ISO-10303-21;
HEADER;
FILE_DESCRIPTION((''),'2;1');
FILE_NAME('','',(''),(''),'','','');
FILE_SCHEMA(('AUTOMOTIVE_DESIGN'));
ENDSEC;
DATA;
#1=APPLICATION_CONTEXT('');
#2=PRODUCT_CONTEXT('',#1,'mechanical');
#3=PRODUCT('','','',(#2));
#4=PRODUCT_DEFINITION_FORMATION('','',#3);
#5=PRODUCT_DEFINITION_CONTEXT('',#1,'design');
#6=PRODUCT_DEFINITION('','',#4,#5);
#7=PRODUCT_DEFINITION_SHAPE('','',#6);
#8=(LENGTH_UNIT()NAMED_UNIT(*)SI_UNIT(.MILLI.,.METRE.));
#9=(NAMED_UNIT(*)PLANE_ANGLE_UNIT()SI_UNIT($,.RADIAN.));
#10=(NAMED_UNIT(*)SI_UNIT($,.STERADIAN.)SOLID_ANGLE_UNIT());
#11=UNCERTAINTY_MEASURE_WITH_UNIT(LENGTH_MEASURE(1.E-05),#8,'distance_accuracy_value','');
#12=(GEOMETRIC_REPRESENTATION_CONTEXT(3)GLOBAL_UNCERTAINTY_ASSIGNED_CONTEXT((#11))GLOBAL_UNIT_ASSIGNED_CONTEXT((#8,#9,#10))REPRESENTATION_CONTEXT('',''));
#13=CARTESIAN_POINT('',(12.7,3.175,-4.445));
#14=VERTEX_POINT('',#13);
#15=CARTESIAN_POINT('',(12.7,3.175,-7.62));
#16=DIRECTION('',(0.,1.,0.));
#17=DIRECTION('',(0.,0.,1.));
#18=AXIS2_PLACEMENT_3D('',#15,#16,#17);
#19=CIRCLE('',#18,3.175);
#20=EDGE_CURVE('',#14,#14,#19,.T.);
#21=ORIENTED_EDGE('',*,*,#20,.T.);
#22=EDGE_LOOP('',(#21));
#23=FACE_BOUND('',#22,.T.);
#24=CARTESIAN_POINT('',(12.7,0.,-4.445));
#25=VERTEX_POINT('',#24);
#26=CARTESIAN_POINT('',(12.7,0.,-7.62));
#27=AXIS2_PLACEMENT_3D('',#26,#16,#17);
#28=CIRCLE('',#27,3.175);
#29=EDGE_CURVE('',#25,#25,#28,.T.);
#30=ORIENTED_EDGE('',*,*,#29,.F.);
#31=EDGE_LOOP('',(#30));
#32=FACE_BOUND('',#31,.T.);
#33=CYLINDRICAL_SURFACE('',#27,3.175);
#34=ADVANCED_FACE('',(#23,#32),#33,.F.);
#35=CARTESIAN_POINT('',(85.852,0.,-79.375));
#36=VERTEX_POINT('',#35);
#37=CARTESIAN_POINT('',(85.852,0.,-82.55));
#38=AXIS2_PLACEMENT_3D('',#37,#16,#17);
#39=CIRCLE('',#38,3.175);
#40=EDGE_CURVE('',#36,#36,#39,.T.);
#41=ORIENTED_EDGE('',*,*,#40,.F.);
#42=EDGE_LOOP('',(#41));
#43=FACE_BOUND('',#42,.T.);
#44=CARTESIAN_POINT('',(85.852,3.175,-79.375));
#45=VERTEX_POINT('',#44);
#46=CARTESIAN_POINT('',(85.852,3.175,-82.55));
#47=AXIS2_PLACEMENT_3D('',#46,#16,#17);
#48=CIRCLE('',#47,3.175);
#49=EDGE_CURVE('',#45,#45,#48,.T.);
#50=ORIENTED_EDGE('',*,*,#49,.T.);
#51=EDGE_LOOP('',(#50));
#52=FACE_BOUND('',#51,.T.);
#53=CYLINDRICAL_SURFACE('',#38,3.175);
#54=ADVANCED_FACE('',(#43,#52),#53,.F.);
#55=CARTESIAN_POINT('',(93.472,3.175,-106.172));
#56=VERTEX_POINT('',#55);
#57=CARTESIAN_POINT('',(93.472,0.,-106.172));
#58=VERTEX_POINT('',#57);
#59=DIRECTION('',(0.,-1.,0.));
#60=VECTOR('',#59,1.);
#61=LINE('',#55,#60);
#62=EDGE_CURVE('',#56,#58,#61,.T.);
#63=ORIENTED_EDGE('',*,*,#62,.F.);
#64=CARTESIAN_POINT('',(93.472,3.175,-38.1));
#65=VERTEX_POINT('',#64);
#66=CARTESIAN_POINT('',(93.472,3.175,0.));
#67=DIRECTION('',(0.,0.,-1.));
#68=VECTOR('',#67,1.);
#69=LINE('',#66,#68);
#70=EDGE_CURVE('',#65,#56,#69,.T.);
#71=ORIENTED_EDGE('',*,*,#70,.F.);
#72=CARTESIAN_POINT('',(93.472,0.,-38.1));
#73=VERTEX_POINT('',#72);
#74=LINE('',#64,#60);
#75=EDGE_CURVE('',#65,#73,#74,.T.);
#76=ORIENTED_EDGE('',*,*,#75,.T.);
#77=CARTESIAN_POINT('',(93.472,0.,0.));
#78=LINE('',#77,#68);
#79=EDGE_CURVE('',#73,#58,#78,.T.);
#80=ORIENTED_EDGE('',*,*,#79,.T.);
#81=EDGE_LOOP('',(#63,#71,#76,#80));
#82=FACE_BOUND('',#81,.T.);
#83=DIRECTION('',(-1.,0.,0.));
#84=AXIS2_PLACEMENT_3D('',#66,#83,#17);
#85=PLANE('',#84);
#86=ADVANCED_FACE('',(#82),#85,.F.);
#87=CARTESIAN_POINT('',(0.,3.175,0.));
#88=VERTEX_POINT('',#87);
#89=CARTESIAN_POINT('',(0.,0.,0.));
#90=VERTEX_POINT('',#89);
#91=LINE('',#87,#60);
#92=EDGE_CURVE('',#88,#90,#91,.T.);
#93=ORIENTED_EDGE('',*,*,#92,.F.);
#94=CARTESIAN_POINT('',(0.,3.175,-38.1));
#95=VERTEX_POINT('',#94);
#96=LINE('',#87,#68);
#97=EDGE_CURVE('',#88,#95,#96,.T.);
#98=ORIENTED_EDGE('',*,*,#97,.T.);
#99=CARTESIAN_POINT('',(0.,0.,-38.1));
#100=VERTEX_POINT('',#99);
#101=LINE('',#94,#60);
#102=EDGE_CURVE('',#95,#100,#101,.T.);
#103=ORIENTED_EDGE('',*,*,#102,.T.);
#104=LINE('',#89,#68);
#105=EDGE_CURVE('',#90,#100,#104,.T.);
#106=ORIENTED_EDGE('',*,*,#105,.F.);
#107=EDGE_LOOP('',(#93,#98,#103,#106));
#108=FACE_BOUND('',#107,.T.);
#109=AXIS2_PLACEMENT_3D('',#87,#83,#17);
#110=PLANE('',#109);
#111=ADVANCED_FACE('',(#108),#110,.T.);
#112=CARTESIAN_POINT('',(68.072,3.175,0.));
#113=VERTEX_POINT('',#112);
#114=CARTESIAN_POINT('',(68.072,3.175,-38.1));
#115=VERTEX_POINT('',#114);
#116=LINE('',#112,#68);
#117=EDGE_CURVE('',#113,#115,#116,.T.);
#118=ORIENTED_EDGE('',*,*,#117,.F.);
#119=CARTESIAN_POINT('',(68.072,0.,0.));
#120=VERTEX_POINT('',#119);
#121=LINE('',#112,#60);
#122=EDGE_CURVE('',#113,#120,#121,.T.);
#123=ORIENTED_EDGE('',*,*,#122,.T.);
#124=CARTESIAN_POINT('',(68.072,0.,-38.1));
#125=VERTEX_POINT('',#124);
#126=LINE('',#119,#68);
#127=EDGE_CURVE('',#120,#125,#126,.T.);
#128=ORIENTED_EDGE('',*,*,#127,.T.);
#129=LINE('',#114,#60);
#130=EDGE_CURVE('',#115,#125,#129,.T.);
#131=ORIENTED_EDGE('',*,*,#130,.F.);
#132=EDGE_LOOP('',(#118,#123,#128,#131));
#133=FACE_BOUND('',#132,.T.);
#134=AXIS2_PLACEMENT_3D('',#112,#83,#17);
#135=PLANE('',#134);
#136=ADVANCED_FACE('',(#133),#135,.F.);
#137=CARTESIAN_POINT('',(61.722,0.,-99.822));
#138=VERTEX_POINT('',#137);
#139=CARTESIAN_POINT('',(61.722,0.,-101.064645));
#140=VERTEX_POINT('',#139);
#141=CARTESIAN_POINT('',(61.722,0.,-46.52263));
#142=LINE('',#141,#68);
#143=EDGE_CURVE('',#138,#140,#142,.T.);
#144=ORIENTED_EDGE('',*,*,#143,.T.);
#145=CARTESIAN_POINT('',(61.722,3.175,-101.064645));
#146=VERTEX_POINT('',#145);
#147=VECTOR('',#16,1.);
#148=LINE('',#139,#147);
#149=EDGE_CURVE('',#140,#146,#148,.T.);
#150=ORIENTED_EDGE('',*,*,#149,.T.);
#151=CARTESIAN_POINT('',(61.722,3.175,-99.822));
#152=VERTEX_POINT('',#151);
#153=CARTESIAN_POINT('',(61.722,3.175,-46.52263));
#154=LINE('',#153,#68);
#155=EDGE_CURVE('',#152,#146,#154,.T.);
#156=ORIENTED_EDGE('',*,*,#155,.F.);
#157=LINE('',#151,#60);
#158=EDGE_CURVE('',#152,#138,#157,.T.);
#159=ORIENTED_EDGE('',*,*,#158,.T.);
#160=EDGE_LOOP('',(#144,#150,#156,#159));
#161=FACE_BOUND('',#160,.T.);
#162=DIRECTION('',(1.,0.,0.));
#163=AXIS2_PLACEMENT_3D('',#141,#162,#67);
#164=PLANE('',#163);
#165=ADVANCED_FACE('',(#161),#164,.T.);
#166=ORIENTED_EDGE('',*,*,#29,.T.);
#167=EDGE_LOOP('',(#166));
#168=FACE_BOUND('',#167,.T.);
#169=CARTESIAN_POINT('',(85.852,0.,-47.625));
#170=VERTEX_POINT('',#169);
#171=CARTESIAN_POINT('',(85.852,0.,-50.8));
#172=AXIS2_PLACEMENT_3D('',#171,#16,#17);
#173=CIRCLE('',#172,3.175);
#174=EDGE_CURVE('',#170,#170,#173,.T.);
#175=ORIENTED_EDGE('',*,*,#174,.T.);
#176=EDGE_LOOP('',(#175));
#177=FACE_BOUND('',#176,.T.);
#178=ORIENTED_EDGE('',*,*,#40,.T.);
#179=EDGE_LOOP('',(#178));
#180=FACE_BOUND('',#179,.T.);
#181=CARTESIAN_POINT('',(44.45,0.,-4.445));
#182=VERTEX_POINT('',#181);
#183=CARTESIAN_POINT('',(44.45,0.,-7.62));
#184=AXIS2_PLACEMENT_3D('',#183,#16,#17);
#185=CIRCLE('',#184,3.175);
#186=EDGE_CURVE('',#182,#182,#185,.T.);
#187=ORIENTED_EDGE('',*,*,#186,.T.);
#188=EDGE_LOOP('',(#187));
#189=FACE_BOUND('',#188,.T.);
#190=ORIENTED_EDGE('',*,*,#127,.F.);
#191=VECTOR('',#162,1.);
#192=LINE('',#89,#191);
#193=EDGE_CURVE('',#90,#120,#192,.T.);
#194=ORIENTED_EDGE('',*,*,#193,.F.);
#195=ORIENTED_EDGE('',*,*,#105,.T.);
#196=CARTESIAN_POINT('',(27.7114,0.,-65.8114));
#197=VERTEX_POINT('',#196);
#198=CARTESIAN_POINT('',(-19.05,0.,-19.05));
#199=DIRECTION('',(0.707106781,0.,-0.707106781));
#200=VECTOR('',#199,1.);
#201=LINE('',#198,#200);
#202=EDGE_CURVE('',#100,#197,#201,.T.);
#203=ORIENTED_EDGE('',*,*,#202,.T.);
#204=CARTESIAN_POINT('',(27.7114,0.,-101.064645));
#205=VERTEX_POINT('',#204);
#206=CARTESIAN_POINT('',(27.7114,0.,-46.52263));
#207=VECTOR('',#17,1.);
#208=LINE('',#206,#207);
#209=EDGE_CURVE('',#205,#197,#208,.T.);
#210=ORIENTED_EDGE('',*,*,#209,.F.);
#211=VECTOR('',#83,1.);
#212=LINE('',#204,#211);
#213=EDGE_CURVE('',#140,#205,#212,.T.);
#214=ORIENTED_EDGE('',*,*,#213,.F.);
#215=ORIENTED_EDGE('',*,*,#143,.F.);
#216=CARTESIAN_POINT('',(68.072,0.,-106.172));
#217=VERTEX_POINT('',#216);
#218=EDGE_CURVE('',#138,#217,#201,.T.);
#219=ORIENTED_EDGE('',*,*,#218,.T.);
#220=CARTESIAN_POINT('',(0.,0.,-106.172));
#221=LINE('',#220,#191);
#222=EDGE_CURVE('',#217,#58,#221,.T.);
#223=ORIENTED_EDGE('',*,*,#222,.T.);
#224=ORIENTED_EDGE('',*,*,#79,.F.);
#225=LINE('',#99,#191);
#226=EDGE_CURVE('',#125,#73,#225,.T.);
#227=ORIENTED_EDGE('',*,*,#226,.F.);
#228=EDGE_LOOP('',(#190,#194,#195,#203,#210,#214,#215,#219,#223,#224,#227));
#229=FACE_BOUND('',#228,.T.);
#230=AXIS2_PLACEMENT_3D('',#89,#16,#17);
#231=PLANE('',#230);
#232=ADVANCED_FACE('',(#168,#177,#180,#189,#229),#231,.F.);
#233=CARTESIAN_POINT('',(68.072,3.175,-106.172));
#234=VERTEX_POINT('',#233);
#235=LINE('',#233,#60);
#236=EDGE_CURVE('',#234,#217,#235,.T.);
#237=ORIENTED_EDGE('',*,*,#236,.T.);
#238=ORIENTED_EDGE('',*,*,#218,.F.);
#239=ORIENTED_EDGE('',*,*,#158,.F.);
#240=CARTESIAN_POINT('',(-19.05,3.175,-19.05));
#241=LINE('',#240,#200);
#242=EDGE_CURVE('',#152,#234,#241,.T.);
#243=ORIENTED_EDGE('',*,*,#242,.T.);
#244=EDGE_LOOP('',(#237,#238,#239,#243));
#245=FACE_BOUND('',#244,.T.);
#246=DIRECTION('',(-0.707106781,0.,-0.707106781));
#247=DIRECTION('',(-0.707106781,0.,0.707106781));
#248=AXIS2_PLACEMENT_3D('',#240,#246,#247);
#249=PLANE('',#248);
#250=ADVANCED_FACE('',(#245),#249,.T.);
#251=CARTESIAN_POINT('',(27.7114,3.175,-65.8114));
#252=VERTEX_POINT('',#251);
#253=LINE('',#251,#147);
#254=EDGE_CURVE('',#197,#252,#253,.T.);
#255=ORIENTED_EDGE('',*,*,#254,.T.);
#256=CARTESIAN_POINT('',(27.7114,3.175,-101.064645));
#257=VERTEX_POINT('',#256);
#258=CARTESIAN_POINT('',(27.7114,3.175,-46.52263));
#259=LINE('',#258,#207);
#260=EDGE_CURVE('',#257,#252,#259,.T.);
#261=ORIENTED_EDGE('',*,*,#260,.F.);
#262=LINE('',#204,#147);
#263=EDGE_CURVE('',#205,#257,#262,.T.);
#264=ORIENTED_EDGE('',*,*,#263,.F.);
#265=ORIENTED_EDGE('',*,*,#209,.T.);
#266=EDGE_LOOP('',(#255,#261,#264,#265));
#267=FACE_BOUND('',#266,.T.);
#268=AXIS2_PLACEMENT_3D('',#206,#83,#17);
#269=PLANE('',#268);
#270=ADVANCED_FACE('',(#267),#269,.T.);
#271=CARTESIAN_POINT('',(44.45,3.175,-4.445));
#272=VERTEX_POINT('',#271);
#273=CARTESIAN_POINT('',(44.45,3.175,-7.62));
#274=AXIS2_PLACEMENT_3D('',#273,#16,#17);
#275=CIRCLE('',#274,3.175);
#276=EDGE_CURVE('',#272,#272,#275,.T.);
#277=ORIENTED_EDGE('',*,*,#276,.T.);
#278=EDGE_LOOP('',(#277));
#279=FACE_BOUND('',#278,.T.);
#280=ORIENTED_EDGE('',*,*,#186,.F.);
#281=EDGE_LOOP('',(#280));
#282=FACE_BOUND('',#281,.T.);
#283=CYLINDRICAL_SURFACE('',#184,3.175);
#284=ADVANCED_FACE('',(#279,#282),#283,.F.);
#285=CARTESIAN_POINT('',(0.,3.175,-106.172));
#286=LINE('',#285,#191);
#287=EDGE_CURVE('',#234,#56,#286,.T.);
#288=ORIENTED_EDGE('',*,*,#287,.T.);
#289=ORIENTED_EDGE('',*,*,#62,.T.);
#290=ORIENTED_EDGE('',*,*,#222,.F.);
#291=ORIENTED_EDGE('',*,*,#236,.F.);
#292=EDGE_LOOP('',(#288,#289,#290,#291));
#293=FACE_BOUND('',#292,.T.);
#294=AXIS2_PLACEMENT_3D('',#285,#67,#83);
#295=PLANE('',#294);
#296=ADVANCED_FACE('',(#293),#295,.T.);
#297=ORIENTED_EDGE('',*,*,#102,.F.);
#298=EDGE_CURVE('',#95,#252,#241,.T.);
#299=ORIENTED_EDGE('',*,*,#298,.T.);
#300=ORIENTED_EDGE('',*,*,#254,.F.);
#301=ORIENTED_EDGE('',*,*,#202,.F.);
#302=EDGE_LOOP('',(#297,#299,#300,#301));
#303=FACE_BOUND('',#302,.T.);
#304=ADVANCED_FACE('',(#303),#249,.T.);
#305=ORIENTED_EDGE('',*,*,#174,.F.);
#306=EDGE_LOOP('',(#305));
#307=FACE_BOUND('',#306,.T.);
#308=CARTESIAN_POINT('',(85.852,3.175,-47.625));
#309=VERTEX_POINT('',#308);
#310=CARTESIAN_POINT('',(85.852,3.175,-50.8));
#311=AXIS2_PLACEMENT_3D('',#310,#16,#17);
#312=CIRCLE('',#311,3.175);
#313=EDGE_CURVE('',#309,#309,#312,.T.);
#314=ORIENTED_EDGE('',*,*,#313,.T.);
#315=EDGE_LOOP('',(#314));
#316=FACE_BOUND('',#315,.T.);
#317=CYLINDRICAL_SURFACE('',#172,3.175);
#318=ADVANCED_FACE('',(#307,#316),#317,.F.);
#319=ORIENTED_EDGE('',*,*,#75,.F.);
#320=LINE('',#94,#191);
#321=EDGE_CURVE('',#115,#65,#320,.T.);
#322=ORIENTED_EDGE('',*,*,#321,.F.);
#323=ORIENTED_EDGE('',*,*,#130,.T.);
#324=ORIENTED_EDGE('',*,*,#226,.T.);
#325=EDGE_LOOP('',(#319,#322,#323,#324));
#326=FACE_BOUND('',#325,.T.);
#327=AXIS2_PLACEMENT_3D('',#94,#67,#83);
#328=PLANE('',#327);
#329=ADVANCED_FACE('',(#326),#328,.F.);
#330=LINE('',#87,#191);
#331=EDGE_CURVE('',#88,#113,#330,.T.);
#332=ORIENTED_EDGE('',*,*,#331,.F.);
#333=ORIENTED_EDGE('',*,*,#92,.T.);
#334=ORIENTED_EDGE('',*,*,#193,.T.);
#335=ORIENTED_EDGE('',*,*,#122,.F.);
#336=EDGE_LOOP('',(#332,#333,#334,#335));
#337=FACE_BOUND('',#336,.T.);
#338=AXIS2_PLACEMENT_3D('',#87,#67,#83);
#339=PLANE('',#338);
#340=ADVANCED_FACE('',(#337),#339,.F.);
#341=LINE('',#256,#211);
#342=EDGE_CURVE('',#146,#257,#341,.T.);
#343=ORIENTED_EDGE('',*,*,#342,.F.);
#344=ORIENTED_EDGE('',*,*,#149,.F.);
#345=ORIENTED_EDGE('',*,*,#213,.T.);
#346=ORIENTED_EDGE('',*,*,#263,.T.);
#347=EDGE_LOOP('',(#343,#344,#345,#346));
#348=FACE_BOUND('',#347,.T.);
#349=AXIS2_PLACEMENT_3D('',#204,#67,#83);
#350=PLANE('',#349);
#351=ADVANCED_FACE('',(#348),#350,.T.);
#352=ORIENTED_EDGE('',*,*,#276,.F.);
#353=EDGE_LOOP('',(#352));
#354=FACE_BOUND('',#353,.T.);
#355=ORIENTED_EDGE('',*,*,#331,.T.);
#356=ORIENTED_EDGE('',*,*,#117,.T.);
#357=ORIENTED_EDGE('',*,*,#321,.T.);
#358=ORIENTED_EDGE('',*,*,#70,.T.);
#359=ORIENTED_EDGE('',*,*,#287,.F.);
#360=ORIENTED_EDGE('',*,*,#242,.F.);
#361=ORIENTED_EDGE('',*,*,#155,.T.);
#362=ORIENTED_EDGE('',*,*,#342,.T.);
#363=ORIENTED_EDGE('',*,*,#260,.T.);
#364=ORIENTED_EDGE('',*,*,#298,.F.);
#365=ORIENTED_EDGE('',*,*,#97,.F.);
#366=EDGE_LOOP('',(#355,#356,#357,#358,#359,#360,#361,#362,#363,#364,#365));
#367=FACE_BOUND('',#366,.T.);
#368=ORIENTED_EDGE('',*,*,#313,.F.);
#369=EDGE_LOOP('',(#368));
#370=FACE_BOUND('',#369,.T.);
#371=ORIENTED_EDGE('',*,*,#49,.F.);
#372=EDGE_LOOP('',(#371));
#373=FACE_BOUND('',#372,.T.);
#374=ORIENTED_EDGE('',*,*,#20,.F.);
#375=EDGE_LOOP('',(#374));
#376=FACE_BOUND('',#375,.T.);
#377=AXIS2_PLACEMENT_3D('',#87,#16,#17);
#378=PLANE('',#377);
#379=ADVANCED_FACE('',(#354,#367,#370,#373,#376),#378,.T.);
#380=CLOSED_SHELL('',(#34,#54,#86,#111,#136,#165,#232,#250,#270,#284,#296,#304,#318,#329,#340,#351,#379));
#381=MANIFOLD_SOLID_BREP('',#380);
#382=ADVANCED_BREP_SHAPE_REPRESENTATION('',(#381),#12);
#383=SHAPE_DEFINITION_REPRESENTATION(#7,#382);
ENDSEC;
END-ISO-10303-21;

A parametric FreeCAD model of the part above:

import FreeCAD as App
import Part
import Sketcher
from FreeCAD import Vector
Q = App.Units.Quantity

doc = App.newDocument("Part")
body = doc.addObject("PartDesign::Body", "Body")

sketch1 = body.newObject("Sketcher::SketchObject", "Sketch")
sketch1.AttachmentSupport = (doc.getObject("XZ_Plane"), [""])
sketch1.MapMode = "FlatFace"
sketch1.addGeometry([
    Part.LineSegment(Vector(0, -38, 0), Vector(0, 0, 0)),
    Part.LineSegment(Vector(0, 0, 0), Vector(68, 0, 0)),
    Part.LineSegment(Vector(68, 0, 0), Vector(68, -38, 0)),
    Part.LineSegment(Vector(68, -38, 0), Vector(93, -38, 0)),
    Part.LineSegment(Vector(93, -38, 0), Vector(93, -106, 0)),
    Part.LineSegment(Vector(93, -106, 0), Vector(68, -106, 0)),
    Part.LineSegment(Vector(68, -106, 0), Vector(0, -38, 0)),
], False)
sketch1.addConstraint([
    Sketcher.Constraint("Coincident", 0, 2, 1, 1),
    Sketcher.Constraint("Coincident", 1, 2, 2, 1),
    Sketcher.Constraint("Coincident", 2, 2, 3, 1),
    Sketcher.Constraint("Coincident", 3, 2, 4, 1),
    Sketcher.Constraint("Coincident", 4, 2, 5, 1),
    Sketcher.Constraint("Coincident", 5, 2, 6, 1),
    Sketcher.Constraint("Coincident", 6, 2, 0, 1),
    Sketcher.Constraint("Vertical", 0),
    Sketcher.Constraint("Horizontal", 1),
    Sketcher.Constraint("Vertical", 2),
    Sketcher.Constraint("Horizontal", 3),
    Sketcher.Constraint("Vertical", 4),
    Sketcher.Constraint("Horizontal", 5),
    Sketcher.Constraint("Coincident", 0, 2, -1, 1),
    Sketcher.Constraint("Horizontal", 3, 2, 6, 2),
    Sketcher.Constraint("Vertical", 2, 2, 5, 2),
    Sketcher.Constraint("Equal", 1, 4),
    Sketcher.Constraint("DistanceX", 3, 1, 3, 2, Q("1 in")),
    Sketcher.Constraint("DistanceY", 0, 1, 0, 2, Q("1.5 in")),
    Sketcher.Constraint("DistanceX", 1, 1, 1, 2, Q("2.68 in")),
])
pad1 = body.newObject("PartDesign::Pad", "Pad")
pad1.Profile = sketch1
pad1.Length = Q("0.125 in")
pad1.Reversed = True

sketch2 = body.newObject("Sketcher::SketchObject", "Sketch001")
sketch2.AttachmentSupport = (doc.getObject("XZ_Plane"), [""])
sketch2.MapMode = "FlatFace"
sketch2.AttachmentOffset = App.Placement(Vector(0, 0, -0.125 * 25.4), App.Rotation())
sketch2.addGeometry([
    Part.Circle(Vector(12.7, -7.6, 0), Vector(0, 0, 1), 3.2),
    Part.Circle(Vector(44.5, -7.6, 0), Vector(0, 0, 1), 3.2),
    Part.Circle(Vector(85.9, -50.8, 0), Vector(0, 0, 1), 3.2),
    Part.Circle(Vector(85.9, -82.5, 0), Vector(0, 0, 1), 3.2),
], False)
sketch2.addConstraint([
    Sketcher.Constraint("Equal", 0, 1),
    Sketcher.Constraint("Equal", 1, 2),
    Sketcher.Constraint("Equal", 2, 3),
    Sketcher.Constraint("Horizontal", 0, 3, 1, 3),
    Sketcher.Constraint("Vertical", 2, 3, 3, 3),
    Sketcher.Constraint("Diameter", 0, Q("0.25 in")),
    Sketcher.Constraint("DistanceY", 2, 3, -1, 1, Q("2 in")),
    Sketcher.Constraint("DistanceX", -1, 1, 0, 3, Q("0.5 in")),
    Sketcher.Constraint("DistanceY", 0, 3, -1, 1, Q("0.3 in")),
    Sketcher.Constraint("DistanceX", -1, 1, 1, 3, Q("1.75 in")),
    Sketcher.Constraint("DistanceX", -1, 1, 2, 3, Q("3.38 in")),
    Sketcher.Constraint("DistanceY", 3, 3, -1, 1, Q("3.25 in")),
])
pocket1 = body.newObject("PartDesign::Pocket", "Pocket")
pocket1.Profile = sketch2
pocket1.Type = "ThroughAll"
pocket1.Reversed = True

sketch3 = body.newObject("Sketcher::SketchObject", "Sketch002")
sketch3.AttachmentSupport = (doc.getObject("XZ_Plane"), [""])
sketch3.MapMode = "FlatFace"
sketch3.AttachmentOffset = App.Placement(Vector(0, 0, -0.125 * 25.4), App.Rotation())
sketch3.addGeometry([
    Part.LineSegment(Vector(28, -101, 0), Vector(28, -47, 0)),
    Part.LineSegment(Vector(28, -47, 0), Vector(62, -47, 0)),
    Part.LineSegment(Vector(62, -47, 0), Vector(62, -101, 0)),
    Part.LineSegment(Vector(62, -101, 0), Vector(28, -101, 0)),
], False)
sketch3.addConstraint([
    Sketcher.Constraint("Coincident", 0, 2, 1, 1),
    Sketcher.Constraint("Coincident", 1, 2, 2, 1),
    Sketcher.Constraint("Coincident", 2, 2, 3, 1),
    Sketcher.Constraint("Coincident", 3, 2, 0, 1),
    Sketcher.Constraint("Vertical", 0),
    Sketcher.Constraint("Horizontal", 1),
    Sketcher.Constraint("Vertical", 2),
    Sketcher.Constraint("Horizontal", 3),
    Sketcher.Constraint("DistanceX", 1, 1, 1, 2, Q("1.339 in")),
    Sketcher.Constraint("DistanceX", -1, 1, 1, 2, Q("2.43 in")),
    Sketcher.Constraint("DistanceY", 0, 1, 0, 2, 54.542014),
    Sketcher.Constraint("DistanceY", 0, 2, -1, 1, 46.52263),
])
pad2 = body.newObject("PartDesign::Pad", "Pad001")
pad2.Profile = sketch3
pad2.Length = Q("0.125 in")

doc.recompute()
